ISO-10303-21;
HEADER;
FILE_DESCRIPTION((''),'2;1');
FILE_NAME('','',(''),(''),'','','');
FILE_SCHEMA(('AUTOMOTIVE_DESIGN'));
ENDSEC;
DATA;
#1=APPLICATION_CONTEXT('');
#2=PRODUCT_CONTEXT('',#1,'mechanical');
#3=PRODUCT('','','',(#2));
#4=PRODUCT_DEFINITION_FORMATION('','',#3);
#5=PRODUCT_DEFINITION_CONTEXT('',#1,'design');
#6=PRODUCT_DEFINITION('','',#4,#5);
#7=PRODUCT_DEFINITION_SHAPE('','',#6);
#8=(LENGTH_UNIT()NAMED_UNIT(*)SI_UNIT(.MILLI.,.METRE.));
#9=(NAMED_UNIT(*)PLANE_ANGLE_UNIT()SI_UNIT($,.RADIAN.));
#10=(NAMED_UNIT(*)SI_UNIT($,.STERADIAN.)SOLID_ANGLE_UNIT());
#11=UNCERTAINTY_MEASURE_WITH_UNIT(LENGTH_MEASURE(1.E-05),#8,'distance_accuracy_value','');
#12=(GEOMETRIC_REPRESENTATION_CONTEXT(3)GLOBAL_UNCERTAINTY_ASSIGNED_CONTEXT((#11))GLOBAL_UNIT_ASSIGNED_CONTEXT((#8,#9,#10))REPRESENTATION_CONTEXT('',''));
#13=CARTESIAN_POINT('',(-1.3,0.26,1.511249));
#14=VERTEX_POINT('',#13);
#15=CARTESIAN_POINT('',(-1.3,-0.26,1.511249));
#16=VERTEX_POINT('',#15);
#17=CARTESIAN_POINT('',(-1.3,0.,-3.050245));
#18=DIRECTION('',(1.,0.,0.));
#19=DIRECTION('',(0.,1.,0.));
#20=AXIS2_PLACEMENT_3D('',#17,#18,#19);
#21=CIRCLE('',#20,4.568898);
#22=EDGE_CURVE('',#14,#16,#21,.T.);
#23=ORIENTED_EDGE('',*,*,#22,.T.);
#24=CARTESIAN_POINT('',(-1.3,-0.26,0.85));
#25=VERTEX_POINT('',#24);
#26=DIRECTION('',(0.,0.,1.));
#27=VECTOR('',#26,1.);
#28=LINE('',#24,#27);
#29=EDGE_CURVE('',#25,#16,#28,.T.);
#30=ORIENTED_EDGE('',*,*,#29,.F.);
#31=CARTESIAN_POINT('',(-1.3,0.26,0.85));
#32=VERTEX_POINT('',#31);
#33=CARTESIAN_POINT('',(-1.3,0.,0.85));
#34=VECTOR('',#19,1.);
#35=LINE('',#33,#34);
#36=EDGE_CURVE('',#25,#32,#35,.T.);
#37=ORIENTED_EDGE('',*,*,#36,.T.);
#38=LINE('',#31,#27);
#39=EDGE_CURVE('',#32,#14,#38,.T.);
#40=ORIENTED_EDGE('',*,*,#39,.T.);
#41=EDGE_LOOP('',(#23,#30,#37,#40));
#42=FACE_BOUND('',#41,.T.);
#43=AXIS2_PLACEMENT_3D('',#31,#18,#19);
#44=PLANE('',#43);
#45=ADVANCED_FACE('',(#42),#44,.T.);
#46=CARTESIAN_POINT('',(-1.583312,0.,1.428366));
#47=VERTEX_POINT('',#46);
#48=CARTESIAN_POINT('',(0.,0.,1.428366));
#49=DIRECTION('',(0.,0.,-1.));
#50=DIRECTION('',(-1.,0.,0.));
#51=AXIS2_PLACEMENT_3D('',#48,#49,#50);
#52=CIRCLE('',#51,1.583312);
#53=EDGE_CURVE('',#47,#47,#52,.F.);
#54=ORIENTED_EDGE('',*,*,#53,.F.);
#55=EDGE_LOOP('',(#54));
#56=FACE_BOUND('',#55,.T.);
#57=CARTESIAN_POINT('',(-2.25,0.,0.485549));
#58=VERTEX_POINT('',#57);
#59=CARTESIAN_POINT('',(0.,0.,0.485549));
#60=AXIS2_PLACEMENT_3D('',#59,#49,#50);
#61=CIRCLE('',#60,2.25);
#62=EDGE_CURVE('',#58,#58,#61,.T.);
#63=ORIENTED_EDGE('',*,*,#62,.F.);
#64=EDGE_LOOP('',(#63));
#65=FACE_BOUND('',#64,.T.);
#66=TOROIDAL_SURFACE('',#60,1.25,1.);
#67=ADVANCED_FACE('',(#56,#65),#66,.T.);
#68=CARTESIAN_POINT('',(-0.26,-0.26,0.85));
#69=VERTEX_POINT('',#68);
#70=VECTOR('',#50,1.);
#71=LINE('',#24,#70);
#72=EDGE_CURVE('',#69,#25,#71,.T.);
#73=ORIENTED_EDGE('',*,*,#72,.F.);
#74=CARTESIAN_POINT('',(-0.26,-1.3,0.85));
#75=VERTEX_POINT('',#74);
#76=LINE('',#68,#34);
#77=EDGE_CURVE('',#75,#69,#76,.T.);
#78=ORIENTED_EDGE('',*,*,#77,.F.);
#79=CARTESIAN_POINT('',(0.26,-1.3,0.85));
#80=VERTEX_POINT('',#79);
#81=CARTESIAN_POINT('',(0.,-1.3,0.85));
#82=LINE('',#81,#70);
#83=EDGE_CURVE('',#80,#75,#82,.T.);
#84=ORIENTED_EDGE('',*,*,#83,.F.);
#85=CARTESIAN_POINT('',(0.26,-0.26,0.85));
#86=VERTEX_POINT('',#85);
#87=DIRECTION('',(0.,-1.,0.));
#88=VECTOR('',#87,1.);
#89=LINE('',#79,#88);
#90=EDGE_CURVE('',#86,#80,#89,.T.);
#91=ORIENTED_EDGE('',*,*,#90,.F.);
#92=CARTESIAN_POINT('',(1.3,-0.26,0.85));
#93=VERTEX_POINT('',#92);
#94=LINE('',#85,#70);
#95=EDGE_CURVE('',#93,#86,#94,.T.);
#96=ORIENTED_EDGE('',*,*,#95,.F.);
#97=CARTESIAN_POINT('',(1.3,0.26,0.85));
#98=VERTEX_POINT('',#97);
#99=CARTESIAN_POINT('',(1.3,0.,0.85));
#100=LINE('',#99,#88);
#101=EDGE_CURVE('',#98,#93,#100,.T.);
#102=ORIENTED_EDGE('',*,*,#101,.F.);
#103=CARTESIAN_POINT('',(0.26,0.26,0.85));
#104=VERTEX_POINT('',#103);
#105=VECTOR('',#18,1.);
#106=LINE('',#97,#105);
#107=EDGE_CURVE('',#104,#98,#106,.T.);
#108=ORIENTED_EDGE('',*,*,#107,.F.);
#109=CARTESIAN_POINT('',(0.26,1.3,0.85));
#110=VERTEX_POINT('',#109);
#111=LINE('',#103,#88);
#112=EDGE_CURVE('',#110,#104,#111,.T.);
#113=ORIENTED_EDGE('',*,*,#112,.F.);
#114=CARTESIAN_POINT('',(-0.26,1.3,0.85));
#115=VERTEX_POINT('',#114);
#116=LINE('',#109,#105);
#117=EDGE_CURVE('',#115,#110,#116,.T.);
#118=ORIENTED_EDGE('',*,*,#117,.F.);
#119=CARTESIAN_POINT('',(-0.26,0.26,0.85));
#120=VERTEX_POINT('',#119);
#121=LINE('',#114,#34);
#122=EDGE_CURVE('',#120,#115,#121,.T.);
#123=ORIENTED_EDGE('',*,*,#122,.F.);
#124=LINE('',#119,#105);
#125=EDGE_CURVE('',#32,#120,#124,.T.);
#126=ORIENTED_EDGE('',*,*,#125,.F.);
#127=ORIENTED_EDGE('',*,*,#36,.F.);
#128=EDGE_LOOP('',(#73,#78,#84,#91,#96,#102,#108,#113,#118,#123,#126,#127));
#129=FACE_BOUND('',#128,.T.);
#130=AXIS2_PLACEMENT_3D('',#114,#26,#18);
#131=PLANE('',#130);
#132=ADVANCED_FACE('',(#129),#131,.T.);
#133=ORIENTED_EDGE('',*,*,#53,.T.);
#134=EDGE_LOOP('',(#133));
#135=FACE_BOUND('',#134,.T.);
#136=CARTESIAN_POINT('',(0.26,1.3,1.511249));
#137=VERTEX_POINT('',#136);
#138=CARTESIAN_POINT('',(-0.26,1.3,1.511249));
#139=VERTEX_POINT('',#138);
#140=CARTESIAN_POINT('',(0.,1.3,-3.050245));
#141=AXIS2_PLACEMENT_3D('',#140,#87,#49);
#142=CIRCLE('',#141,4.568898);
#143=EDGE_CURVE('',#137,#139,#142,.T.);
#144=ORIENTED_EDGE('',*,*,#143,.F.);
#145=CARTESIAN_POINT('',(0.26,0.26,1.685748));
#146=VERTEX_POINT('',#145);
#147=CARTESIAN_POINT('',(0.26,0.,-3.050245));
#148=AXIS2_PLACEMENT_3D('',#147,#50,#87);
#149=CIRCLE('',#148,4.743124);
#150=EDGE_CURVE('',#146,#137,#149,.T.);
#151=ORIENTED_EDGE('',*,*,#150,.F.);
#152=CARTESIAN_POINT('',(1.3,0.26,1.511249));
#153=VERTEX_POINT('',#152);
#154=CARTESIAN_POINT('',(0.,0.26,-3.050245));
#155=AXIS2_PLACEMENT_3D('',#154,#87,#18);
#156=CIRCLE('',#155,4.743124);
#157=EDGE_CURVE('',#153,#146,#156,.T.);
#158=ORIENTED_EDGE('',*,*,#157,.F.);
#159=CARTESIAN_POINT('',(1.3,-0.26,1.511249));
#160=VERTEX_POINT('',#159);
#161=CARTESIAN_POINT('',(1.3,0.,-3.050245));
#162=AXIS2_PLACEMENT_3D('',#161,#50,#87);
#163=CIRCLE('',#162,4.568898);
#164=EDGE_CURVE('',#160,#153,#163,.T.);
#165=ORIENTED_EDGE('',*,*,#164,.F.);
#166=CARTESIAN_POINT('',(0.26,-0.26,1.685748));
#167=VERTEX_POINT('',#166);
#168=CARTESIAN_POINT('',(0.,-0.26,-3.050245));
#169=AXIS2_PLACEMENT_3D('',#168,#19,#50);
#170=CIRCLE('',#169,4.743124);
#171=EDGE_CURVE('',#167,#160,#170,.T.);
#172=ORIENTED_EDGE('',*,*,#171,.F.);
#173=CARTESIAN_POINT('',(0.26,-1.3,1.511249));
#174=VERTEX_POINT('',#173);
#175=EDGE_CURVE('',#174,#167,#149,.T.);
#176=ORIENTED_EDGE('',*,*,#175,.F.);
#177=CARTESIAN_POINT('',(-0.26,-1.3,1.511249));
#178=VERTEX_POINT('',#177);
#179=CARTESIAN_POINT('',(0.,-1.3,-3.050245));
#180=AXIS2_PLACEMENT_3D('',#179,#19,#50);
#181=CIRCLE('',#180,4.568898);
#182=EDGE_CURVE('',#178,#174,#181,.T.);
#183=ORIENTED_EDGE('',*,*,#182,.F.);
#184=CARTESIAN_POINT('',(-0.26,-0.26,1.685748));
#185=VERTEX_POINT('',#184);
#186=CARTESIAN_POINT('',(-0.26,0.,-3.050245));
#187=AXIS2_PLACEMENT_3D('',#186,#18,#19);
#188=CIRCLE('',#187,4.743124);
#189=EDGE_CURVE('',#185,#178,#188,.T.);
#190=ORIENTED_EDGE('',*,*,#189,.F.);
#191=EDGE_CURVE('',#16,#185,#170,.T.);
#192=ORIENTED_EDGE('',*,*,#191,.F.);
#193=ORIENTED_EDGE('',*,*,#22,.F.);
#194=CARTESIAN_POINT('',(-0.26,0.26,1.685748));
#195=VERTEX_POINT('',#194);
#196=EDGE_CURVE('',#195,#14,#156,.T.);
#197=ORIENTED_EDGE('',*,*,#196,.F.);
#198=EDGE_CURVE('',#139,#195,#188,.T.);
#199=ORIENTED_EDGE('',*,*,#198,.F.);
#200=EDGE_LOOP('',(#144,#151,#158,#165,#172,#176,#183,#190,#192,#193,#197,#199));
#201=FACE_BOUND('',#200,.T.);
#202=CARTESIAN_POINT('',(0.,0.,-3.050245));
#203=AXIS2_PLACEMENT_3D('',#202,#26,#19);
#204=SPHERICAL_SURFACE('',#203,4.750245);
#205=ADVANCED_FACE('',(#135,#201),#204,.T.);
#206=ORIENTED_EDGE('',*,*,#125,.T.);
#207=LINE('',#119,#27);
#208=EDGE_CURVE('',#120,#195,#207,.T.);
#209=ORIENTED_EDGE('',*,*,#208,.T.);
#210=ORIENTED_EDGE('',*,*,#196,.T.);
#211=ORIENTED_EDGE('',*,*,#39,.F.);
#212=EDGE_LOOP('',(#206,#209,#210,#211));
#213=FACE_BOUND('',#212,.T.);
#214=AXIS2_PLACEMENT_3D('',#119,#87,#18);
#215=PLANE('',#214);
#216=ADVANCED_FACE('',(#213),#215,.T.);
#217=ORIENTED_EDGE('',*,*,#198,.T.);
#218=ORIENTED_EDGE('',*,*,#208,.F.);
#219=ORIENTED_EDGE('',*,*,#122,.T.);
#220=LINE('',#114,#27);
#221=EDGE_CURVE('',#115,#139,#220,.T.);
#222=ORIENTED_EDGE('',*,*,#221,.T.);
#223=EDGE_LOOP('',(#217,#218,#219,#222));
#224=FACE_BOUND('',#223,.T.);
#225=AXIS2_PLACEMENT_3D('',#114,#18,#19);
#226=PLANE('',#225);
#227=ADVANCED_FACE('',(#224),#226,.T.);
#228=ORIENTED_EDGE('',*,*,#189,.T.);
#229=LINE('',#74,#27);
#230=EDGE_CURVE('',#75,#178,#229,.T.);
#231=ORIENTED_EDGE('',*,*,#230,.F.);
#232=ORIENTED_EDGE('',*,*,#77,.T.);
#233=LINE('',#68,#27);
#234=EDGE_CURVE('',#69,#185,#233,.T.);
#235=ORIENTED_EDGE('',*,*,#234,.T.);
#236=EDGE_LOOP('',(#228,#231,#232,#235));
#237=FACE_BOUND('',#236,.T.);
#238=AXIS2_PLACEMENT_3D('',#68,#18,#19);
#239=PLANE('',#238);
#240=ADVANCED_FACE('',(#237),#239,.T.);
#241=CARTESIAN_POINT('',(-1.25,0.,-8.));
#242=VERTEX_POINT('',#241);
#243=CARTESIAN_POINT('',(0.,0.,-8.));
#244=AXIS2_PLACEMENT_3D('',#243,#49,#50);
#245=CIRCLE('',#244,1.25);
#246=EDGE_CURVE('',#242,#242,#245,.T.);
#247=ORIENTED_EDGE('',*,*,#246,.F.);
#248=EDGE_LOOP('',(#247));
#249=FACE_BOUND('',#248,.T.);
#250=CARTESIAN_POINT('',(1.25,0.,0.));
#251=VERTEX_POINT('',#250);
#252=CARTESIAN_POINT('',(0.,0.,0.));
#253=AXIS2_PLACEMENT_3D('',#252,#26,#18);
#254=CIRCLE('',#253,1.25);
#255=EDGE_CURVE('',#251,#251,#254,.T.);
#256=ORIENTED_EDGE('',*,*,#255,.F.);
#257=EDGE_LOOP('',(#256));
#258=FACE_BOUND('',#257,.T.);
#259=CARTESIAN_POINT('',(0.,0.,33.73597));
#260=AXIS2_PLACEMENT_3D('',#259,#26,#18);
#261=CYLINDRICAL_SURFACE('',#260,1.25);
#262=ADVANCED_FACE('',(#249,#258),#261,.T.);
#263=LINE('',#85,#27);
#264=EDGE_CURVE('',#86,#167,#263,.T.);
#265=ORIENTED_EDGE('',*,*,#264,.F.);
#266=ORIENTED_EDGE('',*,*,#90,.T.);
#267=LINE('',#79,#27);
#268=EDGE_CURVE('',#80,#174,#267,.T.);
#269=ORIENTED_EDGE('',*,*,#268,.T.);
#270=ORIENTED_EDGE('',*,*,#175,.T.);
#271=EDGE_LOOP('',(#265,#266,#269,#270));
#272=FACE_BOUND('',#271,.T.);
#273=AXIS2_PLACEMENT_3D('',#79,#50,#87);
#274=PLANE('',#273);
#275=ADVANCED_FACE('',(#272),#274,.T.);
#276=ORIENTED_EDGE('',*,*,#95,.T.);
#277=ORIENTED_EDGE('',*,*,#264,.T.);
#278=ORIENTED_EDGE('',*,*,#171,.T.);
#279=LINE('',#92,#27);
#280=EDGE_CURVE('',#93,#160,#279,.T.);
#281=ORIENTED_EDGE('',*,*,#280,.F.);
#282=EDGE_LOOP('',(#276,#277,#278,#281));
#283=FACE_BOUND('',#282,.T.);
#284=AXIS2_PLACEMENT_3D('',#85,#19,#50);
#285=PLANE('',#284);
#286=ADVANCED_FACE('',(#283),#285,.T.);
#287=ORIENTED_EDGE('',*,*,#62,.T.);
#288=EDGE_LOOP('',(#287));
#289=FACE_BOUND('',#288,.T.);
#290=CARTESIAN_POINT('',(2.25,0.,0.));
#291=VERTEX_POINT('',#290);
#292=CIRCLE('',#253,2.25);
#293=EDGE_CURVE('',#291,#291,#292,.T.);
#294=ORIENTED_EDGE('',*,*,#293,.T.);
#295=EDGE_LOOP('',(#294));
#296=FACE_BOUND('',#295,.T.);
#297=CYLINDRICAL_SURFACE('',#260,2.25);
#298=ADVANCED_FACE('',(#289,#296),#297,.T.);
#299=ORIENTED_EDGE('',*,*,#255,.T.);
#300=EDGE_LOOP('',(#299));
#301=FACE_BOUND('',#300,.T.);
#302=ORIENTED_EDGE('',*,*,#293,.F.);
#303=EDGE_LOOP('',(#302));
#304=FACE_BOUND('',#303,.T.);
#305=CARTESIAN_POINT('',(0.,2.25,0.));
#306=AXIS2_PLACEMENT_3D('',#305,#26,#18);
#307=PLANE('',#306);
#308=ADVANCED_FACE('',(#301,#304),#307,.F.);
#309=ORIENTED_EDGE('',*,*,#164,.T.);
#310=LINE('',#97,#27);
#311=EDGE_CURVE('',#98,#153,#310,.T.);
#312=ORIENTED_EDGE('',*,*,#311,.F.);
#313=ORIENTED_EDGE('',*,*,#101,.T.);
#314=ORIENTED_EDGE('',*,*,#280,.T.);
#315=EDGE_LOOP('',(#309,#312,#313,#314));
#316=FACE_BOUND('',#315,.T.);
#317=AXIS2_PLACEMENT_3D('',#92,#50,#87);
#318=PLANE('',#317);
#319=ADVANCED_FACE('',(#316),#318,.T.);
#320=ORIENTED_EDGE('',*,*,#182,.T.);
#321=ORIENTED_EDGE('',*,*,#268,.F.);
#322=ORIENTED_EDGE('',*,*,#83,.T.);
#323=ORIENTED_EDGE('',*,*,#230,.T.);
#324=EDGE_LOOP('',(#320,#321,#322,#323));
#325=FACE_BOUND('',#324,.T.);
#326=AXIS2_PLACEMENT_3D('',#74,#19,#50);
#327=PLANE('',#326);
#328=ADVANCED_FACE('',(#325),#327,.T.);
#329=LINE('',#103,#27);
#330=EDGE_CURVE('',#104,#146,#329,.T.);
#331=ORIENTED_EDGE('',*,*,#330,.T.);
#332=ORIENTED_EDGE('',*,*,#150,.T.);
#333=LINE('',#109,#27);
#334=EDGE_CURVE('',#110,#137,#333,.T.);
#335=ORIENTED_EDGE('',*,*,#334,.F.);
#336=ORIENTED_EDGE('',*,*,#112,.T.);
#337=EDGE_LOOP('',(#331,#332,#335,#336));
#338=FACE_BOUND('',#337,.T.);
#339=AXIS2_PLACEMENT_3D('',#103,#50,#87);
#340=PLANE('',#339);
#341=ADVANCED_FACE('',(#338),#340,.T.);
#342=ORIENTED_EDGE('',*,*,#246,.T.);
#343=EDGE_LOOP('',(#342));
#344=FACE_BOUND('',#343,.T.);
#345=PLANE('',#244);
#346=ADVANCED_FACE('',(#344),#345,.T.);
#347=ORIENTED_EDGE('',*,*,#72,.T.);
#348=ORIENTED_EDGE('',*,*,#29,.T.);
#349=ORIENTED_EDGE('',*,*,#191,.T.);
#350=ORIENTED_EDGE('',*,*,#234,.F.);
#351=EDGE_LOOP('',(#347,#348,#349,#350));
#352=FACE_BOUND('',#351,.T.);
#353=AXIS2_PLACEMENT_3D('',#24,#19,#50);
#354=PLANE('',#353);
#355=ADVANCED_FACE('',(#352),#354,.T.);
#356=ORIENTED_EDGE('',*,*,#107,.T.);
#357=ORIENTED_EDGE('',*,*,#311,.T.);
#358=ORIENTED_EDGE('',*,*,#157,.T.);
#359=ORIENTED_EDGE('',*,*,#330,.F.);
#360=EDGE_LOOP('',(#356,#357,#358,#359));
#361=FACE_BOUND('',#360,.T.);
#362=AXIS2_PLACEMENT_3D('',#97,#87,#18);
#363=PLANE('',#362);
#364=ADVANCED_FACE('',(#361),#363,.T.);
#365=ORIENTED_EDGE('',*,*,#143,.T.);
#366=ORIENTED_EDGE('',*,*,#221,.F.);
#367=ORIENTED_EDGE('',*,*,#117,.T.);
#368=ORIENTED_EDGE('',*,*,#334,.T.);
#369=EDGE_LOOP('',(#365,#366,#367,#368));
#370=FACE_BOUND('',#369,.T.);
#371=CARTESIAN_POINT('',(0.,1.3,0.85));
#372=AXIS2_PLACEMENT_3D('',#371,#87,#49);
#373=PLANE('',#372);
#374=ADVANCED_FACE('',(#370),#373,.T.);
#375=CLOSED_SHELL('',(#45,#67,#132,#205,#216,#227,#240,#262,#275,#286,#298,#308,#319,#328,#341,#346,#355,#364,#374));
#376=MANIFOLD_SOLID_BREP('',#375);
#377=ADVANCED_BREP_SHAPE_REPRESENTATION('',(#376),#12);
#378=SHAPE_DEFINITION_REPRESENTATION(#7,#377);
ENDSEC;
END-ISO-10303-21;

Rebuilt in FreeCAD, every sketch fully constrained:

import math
import FreeCAD as App
import Part
import Sketcher

V = App.Vector
Q = App.Units.Quantity


def edges_at(feature, points):
    """Names of the edges that pass closest to the given points."""
    edges = feature.Shape.Edges
    near = lambda p: min(range(len(edges)), key=lambda i: edges[i].distToShape(Part.Vertex(*p))[0])
    return sorted({f"Edge{near(p) + 1}" for p in points})

doc = App.newDocument("Part")
body = doc.addObject("PartDesign::Body", "Body")

# Sketch on YZ plane
sketch1 = doc.addObject("Sketcher::SketchObject", "Sketch")
body.addObject(sketch1)
sketch1.AttachmentSupport = (doc.YZ_Plane, [""])
sketch1.MapMode = "FlatFace"
sketch1.addGeometry([
    Part.LineSegment(V(2.2, 0, 0), V(2.2, 1.1, 0)),  # 0
    Part.ArcOfCircle(Part.Circle(V(0, -3.1, 0), V(0, 0, 1), 4.8), math.radians(62), math.radians(90)),  # 1
    Part.LineSegment(V(0, 1.7, 0), V(0, -4, 0)),  # 2
    Part.LineSegment(V(0, -4, 0), V(1.2, -4, 0)),  # 3
    Part.LineSegment(V(1.2, -4, 0), V(1.2, 0, 0)),  # 4
    Part.LineSegment(V(1.2, 0, 0), V(2.2, 0, 0)),  # 5
], False)
sketch1.addConstraint([
    Sketcher.Constraint("Coincident", 0, 2, 1, 1),
    Sketcher.Constraint("Coincident", 1, 2, 2, 1),
    Sketcher.Constraint("Coincident", 2, 2, 3, 1),
    Sketcher.Constraint("Coincident", 3, 2, 4, 1),
    Sketcher.Constraint("Coincident", 4, 2, 5, 1),
    Sketcher.Constraint("Coincident", 5, 2, 0, 1),
    Sketcher.Constraint("Vertical", 0),
    Sketcher.Constraint("Vertical", 2),
    Sketcher.Constraint("Horizontal", 3),
    Sketcher.Constraint("Vertical", 4),
    Sketcher.Constraint("Horizontal", 5),
    Sketcher.Constraint("PointOnObject", 1, 3, -2),
    Sketcher.Constraint("PointOnObject", 1, 2, -2),
    Sketcher.Constraint("PointOnObject", 4, 2, -1),
    Sketcher.Constraint("DistanceX", 5, 1, 5, 2, Q("1 mm")),
    Sketcher.Constraint("DistanceY", 4, 1, 4, 2, Q("4 mm")),
    Sketcher.Constraint("DistanceY", 2, 2, 2, 1, Q("5.7 mm")),
    Sketcher.Constraint("DistanceX", 3, 1, 3, 2, Q("1.25 mm")),
    Sketcher.Constraint("Radius", 1, Q("4.750245 mm")),
])
revolution = doc.addObject("PartDesign::Revolution", "Revolution")
body.addObject(revolution)
revolution.Profile = sketch1
revolution.ReferenceAxis = (sketch1, ["V_Axis"])
revolution.Angle = 360

# Sketch on XY plane
sketch2 = doc.addObject("Sketcher::SketchObject", "Sketch001")
body.addObject(sketch2)
sketch2.AttachmentSupport = (doc.XY_Plane, [""])
sketch2.MapMode = "FlatFace"
sketch2.AttachmentOffset = App.Placement(V(0, 0, 1.7), App.Rotation())
sketch2.addGeometry([
    Part.LineSegment(V(-0.3, 1.3, 0), V(0.3, 1.3, 0)),  # 0
    Part.LineSegment(V(0.3, 1.3, 0), V(0.3, 0.3, 0)),  # 1
    Part.LineSegment(V(0.3, 0.3, 0), V(1.3, 0.3, 0)),  # 2
    Part.LineSegment(V(1.3, 0.3, 0), V(1.3, -0.3, 0)),  # 3
    Part.LineSegment(V(1.3, -0.3, 0), V(0.3, -0.3, 0)),  # 4
    Part.LineSegment(V(0.3, -0.3, 0), V(0.3, -1.3, 0)),  # 5
    Part.LineSegment(V(0.3, -1.3, 0), V(-0.3, -1.3, 0)),  # 6
    Part.LineSegment(V(-0.3, -1.3, 0), V(-0.3, -0.3, 0)),  # 7
    Part.LineSegment(V(-0.3, -0.3, 0), V(-1.3, -0.3, 0)),  # 8
    Part.LineSegment(V(-1.3, -0.3, 0), V(-1.3, 0.3, 0)),  # 9
    Part.LineSegment(V(-1.3, 0.3, 0), V(-0.3, 0.3, 0)),  # 10
    Part.LineSegment(V(-0.3, 0.3, 0), V(-0.3, 1.3, 0)),  # 11
], False)
sketch2.addConstraint([
    Sketcher.Constraint("Coincident", 0, 2, 1, 1),
    Sketcher.Constraint("Coincident", 1, 2, 2, 1),
    Sketcher.Constraint("Coincident", 2, 2, 3, 1),
    Sketcher.Constraint("Coincident", 3, 2, 4, 1),
    Sketcher.Constraint("Coincident", 4, 2, 5, 1),
    Sketcher.Constraint("Coincident", 5, 2, 6, 1),
    Sketcher.Constraint("Coincident", 6, 2, 7, 1),
    Sketcher.Constraint("Coincident", 7, 2, 8, 1),
    Sketcher.Constraint("Coincident", 8, 2, 9, 1),
    Sketcher.Constraint("Coincident", 9, 2, 10, 1),
    Sketcher.Constraint("Coincident", 10, 2, 11, 1),
    Sketcher.Constraint("Coincident", 11, 2, 0, 1),
    Sketcher.Constraint("Horizontal", 0),
    Sketcher.Constraint("Vertical", 1),
    Sketcher.Constraint("Horizontal", 2),
    Sketcher.Constraint("Vertical", 3),
    Sketcher.Constraint("Horizontal", 4),
    Sketcher.Constraint("Vertical", 5),
    Sketcher.Constraint("Horizontal", 6),
    Sketcher.Constraint("Vertical", 7),
    Sketcher.Constraint("Horizontal", 8),
    Sketcher.Constraint("Vertical", 9),
    Sketcher.Constraint("Horizontal", 10),
    Sketcher.Constraint("Vertical", 11),
    Sketcher.Constraint("Symmetric", 0, 2, 6, 2, -1, 1),
    Sketcher.Constraint("Symmetric", 2, 2, 8, 2, -1, 1),
    Sketcher.Constraint("Symmetric", 4, 2, 10, 2, -1, 1),
    Sketcher.Constraint("Symmetric", 4, 2, 7, 2, -2),
    Sketcher.Constraint("Equal", 10, 1),
    Sketcher.Constraint("Equal", 6, 3),
    Sketcher.Constraint("DistanceX", 0, 1, 0, 2, Q("0.52 mm")),
    Sketcher.Constraint("DistanceX", 2, 1, 2, 2, Q("1.04 mm")),
])
pocket1 = doc.addObject("PartDesign::Pocket", "Pocket")
body.addObject(pocket1)
pocket1.Profile = sketch2
pocket1.Length = 0.85
doc.recompute()

fillet = doc.addObject("PartDesign::Fillet", "Fillet")
body.addObject(fillet)
fillet.Base = (pocket1, edges_at(pocket1, [(0, -2.25, 1.133)]))
fillet.Radius = 1
doc.recompute()

chamfer = doc.addObject("PartDesign::Chamfer", "Chamfer")
body.addObject(chamfer)
chamfer.Base = (fillet, edges_at(fillet, [(0, -1.25, -4)]))
chamfer.Size = 0.225

# Sketch on XY plane
sketch3 = doc.addObject("Sketcher::SketchObject", "Sketch002")
body.addObject(sketch3)
sketch3.AttachmentSupport = (doc.XY_Plane, [""])
sketch3.MapMode = "FlatFace"
sketch3.addGeometry(Part.Circle(V(0, 0, 0), V(0, 0, 1), 1.2), False)
sketch3.addConstraint([
    Sketcher.Constraint("Coincident", 0, 3, -1, 1),
    Sketcher.Constraint("Diameter", 0, Q("2.5 mm")),
])
pad1 = doc.addObject("PartDesign::Pad", "Pad")
body.addObject(pad1)
pad1.Profile = sketch3
pad1.Length = 8
pad1.Reversed = True

doc.recompute()
